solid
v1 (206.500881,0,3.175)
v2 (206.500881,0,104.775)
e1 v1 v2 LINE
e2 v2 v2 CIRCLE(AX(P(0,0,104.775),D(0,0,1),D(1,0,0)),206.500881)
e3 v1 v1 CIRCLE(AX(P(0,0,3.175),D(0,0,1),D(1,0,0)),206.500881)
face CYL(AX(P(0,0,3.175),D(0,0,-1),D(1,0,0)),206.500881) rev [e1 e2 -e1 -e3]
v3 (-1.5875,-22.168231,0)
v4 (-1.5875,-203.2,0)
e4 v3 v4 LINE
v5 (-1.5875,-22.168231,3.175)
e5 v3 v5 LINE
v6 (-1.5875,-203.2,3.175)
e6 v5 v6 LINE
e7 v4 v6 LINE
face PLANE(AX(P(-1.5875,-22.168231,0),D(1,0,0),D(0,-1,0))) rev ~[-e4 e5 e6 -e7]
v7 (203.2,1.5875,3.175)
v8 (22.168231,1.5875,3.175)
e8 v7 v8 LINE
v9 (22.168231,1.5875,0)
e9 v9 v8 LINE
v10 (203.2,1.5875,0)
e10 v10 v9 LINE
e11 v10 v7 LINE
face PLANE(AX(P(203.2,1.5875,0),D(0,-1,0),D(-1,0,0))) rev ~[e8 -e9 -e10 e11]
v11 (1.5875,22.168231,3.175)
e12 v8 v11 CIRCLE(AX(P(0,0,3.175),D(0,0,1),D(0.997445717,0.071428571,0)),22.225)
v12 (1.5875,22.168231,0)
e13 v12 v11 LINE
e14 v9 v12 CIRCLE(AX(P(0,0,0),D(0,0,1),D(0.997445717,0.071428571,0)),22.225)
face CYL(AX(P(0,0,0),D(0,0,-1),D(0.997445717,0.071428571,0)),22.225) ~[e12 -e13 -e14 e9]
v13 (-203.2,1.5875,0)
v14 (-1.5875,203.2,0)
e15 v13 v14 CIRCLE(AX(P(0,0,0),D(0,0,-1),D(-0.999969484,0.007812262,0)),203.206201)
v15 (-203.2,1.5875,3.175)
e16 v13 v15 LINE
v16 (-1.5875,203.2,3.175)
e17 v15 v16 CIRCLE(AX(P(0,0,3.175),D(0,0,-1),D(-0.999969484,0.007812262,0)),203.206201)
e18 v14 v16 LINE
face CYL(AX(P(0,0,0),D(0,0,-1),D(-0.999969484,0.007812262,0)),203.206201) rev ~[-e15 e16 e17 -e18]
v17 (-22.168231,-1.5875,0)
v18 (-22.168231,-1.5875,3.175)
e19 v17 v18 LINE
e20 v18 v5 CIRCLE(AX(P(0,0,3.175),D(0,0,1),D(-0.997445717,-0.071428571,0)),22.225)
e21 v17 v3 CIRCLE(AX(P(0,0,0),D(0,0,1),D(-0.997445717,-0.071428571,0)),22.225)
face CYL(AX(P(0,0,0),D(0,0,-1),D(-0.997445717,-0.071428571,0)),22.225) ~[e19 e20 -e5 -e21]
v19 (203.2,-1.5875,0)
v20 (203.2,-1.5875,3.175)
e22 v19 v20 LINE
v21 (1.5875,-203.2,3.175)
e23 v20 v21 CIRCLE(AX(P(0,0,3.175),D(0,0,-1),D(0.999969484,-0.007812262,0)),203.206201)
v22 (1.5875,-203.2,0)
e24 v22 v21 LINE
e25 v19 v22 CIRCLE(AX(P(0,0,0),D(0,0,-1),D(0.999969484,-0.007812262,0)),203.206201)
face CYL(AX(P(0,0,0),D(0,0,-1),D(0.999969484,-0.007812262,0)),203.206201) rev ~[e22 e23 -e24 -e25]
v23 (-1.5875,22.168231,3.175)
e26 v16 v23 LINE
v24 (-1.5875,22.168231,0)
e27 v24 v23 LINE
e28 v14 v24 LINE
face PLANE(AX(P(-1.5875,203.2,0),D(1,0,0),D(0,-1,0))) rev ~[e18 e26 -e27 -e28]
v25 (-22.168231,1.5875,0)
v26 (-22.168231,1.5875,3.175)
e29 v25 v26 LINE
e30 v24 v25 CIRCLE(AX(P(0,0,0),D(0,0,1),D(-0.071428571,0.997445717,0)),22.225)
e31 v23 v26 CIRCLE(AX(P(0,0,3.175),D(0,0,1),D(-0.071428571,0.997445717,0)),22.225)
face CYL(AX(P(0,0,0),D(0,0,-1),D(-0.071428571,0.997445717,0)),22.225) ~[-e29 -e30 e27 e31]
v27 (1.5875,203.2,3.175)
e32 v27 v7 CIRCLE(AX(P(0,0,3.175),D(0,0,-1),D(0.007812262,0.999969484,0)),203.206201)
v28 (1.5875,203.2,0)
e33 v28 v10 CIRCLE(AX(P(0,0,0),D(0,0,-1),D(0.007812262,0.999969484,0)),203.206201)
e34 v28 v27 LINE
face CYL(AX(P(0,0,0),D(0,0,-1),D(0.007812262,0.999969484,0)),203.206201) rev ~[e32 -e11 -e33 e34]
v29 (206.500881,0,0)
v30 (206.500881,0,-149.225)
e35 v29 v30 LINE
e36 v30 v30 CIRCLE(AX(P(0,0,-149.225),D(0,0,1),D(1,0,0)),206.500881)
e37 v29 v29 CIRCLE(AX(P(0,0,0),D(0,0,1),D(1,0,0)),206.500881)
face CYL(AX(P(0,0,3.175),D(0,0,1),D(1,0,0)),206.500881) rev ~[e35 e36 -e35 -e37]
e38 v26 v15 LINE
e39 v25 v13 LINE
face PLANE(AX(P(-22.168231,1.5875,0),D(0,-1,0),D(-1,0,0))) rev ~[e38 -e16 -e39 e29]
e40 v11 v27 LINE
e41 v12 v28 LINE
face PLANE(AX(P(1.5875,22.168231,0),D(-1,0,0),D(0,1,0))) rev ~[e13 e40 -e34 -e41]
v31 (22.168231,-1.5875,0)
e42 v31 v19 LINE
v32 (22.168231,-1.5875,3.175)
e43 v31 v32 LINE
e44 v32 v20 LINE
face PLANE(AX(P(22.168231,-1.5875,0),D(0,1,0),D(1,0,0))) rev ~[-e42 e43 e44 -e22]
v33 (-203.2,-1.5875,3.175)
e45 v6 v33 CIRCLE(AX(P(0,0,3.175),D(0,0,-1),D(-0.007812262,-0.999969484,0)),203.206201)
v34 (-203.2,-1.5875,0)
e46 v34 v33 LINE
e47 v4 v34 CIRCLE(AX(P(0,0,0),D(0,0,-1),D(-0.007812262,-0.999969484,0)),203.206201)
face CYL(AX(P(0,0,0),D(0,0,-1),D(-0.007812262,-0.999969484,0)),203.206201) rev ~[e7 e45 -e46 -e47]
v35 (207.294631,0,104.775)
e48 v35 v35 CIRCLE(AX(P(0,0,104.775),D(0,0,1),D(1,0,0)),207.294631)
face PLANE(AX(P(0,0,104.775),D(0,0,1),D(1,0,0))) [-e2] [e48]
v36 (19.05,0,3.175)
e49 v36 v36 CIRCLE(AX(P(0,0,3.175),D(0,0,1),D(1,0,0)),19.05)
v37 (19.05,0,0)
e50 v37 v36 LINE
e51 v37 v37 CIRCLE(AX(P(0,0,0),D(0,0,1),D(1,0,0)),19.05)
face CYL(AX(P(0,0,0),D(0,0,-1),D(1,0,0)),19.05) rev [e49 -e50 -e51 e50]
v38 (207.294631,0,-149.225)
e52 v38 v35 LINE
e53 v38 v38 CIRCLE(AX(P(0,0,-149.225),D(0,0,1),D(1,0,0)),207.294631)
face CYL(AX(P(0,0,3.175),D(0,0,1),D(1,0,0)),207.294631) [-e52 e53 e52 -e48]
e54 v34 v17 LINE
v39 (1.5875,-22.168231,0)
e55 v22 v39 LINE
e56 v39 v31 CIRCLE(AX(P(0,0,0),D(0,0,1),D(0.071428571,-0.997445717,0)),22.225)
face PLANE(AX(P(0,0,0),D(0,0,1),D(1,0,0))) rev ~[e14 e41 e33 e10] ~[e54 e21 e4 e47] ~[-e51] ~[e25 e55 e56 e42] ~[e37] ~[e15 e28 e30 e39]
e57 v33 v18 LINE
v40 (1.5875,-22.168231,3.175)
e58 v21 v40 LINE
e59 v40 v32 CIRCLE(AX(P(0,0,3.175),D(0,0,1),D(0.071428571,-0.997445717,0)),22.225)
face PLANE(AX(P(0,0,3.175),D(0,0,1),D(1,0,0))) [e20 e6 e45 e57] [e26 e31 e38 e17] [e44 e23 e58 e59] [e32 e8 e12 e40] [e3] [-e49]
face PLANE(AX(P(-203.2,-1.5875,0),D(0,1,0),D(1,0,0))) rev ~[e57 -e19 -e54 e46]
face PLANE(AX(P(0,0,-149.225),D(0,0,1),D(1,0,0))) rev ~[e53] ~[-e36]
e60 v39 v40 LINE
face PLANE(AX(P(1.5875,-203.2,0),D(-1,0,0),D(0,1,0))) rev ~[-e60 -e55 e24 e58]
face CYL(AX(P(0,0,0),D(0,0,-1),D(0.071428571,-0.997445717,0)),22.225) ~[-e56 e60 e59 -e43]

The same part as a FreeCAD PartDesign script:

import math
import FreeCAD as App
import Part
import Sketcher
Q = App.Units.Quantity

doc = App.newDocument("Part")
params = doc.addObject("Spreadsheet::Sheet", "Params")
for row, (alias, value) in enumerate([
    ("sketch1_diameter", "1.5 in"),
    ("sketch1_radius", "0.875 in"),
    ("pad1_length", "0.125 in"),
    ("pad2_length", "4 in"),
    ("pad2_length2", "6 in"),
], start=1):
    params.set(f"A{row}", alias)
    params.set(f"B{row}", "=" + value)
    params.setAlias(f"B{row}", alias)

body = doc.addObject("PartDesign::Body", "Body")

sketch1 = body.newObject("Sketcher::SketchObject", "Sketch")
sketch1.AttachmentSupport = (doc.getObject("XY_Plane"), [""])
sketch1.MapMode = "FlatFace"
sketch1.addGeometry(Part.Circle(App.Vector(0, 0, 0), App.Vector(0, 0, 1), 207), False)
sketch1.addGeometry(Part.ArcOfCircle(Part.Circle(App.Vector(0, 0, 0), App.Vector(0, 0, 1), 203), math.radians(-180), math.radians(-90)), False)
sketch1.addGeometry(Part.LineSegment(App.Vector(-203, -2, 0), App.Vector(-22, -2, 0)), False)
sketch1.addGeometry(Part.ArcOfCircle(Part.Circle(App.Vector(0, 0, 0), App.Vector(0, 0, 1), 22), math.radians(-176), math.radians(-94)), False)
sketch1.addGeometry(Part.LineSegment(App.Vector(-2, -22, 0), App.Vector(-2, -203, 0)), False)
sketch1.addGeometry(Part.Circle(App.Vector(0, 0, 0), App.Vector(0, 0, 1), 19), False)
sketch1.addGeometry(Part.ArcOfCircle(Part.Circle(App.Vector(0, 0, 0), App.Vector(0, 0, 1), 22), math.radians(-86), math.radians(-4)), False)
sketch1.addGeometry(Part.LineSegment(App.Vector(22, -2, 0), App.Vector(203, -2, 0)), False)
sketch1.addGeometry(Part.ArcOfCircle(Part.Circle(App.Vector(0, 0, 0), App.Vector(0, 0, 1), 203), math.radians(-90), math.radians(0)), False)
sketch1.addGeometry(Part.LineSegment(App.Vector(2, -203, 0), App.Vector(2, -22, 0)), False)
sketch1.addGeometry(Part.LineSegment(App.Vector(-22, 2, 0), App.Vector(-203, 2, 0)), False)
sketch1.addGeometry(Part.ArcOfCircle(Part.Circle(App.Vector(0, 0, 0), App.Vector(0, 0, 1), 203), math.radians(90), math.radians(180)), False)
sketch1.addGeometry(Part.LineSegment(App.Vector(-2, 203, 0), App.Vector(-2, 22, 0)), False)
sketch1.addGeometry(Part.ArcOfCircle(Part.Circle(App.Vector(0, 0, 0), App.Vector(0, 0, 1), 22), math.radians(94), math.radians(176)), False)
sketch1.addGeometry(Part.ArcOfCircle(Part.Circle(App.Vector(0, 0, 0), App.Vector(0, 0, 1), 203), math.radians(0), math.radians(90)), False)
sketch1.addGeometry(Part.LineSegment(App.Vector(203, 2, 0), App.Vector(22, 2, 0)), False)
sketch1.addGeometry(Part.ArcOfCircle(Part.Circle(App.Vector(0, 0, 0), App.Vector(0, 0, 1), 22), math.radians(4), math.radians(86)), False)
sketch1.addGeometry(Part.LineSegment(App.Vector(2, 22, 0), App.Vector(2, 203, 0)), False)
sketch1.addConstraint(Sketcher.Constraint("Coincident", 1, 1, 2, 1))
sketch1.addConstraint(Sketcher.Constraint("Coincident", 2, 2, 3, 1))
sketch1.addConstraint(Sketcher.Constraint("Coincident", 3, 2, 4, 1))
sketch1.addConstraint(Sketcher.Constraint("Coincident", 4, 2, 1, 2))
sketch1.addConstraint(Sketcher.Constraint("Coincident", 6, 2, 7, 1))
sketch1.addConstraint(Sketcher.Constraint("Coincident", 7, 2, 8, 2))
sketch1.addConstraint(Sketcher.Constraint("Coincident", 8, 1, 9, 1))
sketch1.addConstraint(Sketcher.Constraint("Coincident", 9, 2, 6, 1))
sketch1.addConstraint(Sketcher.Constraint("Coincident", 10, 2, 11, 2))
sketch1.addConstraint(Sketcher.Constraint("Coincident", 11, 1, 12, 1))
sketch1.addConstraint(Sketcher.Constraint("Coincident", 12, 2, 13, 1))
sketch1.addConstraint(Sketcher.Constraint("Coincident", 13, 2, 10, 1))
sketch1.addConstraint(Sketcher.Constraint("Coincident", 14, 1, 15, 1))
sketch1.addConstraint(Sketcher.Constraint("Coincident", 15, 2, 16, 1))
sketch1.addConstraint(Sketcher.Constraint("Coincident", 16, 2, 17, 1))
sketch1.addConstraint(Sketcher.Constraint("Coincident", 17, 2, 14, 2))
sketch1.addConstraint(Sketcher.Constraint("Horizontal", 2))
sketch1.addConstraint(Sketcher.Constraint("Vertical", 4))
sketch1.addConstraint(Sketcher.Constraint("Horizontal", 7))
sketch1.addConstraint(Sketcher.Constraint("Vertical", 9))
sketch1.addConstraint(Sketcher.Constraint("Horizontal", 10))
sketch1.addConstraint(Sketcher.Constraint("Vertical", 12))
sketch1.addConstraint(Sketcher.Constraint("Horizontal", 15))
sketch1.addConstraint(Sketcher.Constraint("Vertical", 17))
sketch1.addConstraint(Sketcher.Constraint("Coincident", 0, 3, -1, 1))
sketch1.addConstraint(Sketcher.Constraint("Coincident", 1, 3, -1, 1))
sketch1.addConstraint(Sketcher.Constraint("Coincident", 3, 3, -1, 1))
sketch1.addConstraint(Sketcher.Constraint("Coincident", 5, 3, -1, 1))
sketch1.addConstraint(Sketcher.Constraint("Coincident", 6, 3, -1, 1))
sketch1.addConstraint(Sketcher.Constraint("Coincident", 8, 3, -1, 1))
sketch1.addConstraint(Sketcher.Constraint("Coincident", 11, 3, -1, 1))
sketch1.addConstraint(Sketcher.Constraint("Coincident", 13, 3, -1, 1))
sketch1.addConstraint(Sketcher.Constraint("Coincident", 14, 3, -1, 1))
sketch1.addConstraint(Sketcher.Constraint("Coincident", 16, 3, -1, 1))
sketch1.addConstraint(Sketcher.Constraint("Equal", 3, 6))
sketch1.addConstraint(Sketcher.Constraint("Equal", 1, 8))
sketch1.addConstraint(Sketcher.Constraint("Equal", 8, 11))
sketch1.addConstraint(Sketcher.Constraint("Equal", 6, 13))
sketch1.addConstraint(Sketcher.Constraint("Equal", 11, 14))
sketch1.addConstraint(Sketcher.Constraint("Equal", 13, 16))
sketch1.addConstraint(Sketcher.Constraint("Horizontal", 2, 2, 6, 2))
sketch1.addConstraint(Sketcher.Constraint("Horizontal", 4, 2, 8, 1))
sketch1.addConstraint(Sketcher.Constraint("Horizontal", 13, 2, 14, 1))
sketch1.addConstraint(Sketcher.Constraint("Horizontal", 12, 2, 16, 2))
sketch1.addConstraint(Sketcher.Constraint("Vertical", 1, 1, 10, 2))
sketch1.addConstraint(Sketcher.Constraint("Vertical", 4, 2, 11, 1))
sketch1.addConstraint(Sketcher.Constraint("Equal", 15, 4))
sketch1.addConstraint(Sketcher.Constraint("Diameter", 5, Q("1.5 in")))
sketch1.addConstraint(Sketcher.Constraint("DistanceX", 1, 1, -1, 1, Q("8 in")))
sketch1.addConstraint(Sketcher.Constraint("Radius", 3, Q("0.875 in")))
sketch1.addConstraint(Sketcher.Constraint("DistanceY", 2, 2, -1, 1, Q("0.0625 in")))
sketch1.addConstraint(Sketcher.Constraint("Diameter", 0, Q("413.001762 mm")))
sketch1.setExpression("Constraints[47]", "Params.sketch1_diameter")
sketch1.setExpression("Constraints[49]", "Params.sketch1_radius")
pad1 = body.newObject("PartDesign::Pad", "Pad")
pad1.Profile = sketch1
pad1.setExpression("Length", "Params.pad1_length")

sketch2 = body.newObject("Sketcher::SketchObject", "Sketch001")
sketch2.AttachmentSupport = (doc.getObject("XY_Plane"), [""])
sketch2.MapMode = "FlatFace"
sketch2.AttachmentOffset = App.Placement(App.Vector(0, 0, 0.125 * 25.4), App.Rotation())
sketch2.addGeometry(Part.Circle(App.Vector(0, 0, 0), App.Vector(0, 0, 1), 207), False)
sketch2.addGeometry(Part.Circle(App.Vector(0, 0, 0), App.Vector(0, 0, 1), 207), False)
sketch2.addConstraint(Sketcher.Constraint("Coincident", 0, 3, -1, 1))
sketch2.addConstraint(Sketcher.Constraint("Coincident", 1, 3, -1, 1))
sketch2.addConstraint(Sketcher.Constraint("Diameter", 0, Q("414.589262 mm")))
sketch2.addConstraint(Sketcher.Constraint("Diameter", 1, Q("413.001762 mm")))
pad2 = body.newObject("PartDesign::Pad", "Pad001")
pad2.Profile = sketch2
pad2.Type = "TwoLengths"
pad2.setExpression("Length", "Params.pad2_length")
pad2.setExpression("Length2", "Params.pad2_length2")

doc.recompute()
